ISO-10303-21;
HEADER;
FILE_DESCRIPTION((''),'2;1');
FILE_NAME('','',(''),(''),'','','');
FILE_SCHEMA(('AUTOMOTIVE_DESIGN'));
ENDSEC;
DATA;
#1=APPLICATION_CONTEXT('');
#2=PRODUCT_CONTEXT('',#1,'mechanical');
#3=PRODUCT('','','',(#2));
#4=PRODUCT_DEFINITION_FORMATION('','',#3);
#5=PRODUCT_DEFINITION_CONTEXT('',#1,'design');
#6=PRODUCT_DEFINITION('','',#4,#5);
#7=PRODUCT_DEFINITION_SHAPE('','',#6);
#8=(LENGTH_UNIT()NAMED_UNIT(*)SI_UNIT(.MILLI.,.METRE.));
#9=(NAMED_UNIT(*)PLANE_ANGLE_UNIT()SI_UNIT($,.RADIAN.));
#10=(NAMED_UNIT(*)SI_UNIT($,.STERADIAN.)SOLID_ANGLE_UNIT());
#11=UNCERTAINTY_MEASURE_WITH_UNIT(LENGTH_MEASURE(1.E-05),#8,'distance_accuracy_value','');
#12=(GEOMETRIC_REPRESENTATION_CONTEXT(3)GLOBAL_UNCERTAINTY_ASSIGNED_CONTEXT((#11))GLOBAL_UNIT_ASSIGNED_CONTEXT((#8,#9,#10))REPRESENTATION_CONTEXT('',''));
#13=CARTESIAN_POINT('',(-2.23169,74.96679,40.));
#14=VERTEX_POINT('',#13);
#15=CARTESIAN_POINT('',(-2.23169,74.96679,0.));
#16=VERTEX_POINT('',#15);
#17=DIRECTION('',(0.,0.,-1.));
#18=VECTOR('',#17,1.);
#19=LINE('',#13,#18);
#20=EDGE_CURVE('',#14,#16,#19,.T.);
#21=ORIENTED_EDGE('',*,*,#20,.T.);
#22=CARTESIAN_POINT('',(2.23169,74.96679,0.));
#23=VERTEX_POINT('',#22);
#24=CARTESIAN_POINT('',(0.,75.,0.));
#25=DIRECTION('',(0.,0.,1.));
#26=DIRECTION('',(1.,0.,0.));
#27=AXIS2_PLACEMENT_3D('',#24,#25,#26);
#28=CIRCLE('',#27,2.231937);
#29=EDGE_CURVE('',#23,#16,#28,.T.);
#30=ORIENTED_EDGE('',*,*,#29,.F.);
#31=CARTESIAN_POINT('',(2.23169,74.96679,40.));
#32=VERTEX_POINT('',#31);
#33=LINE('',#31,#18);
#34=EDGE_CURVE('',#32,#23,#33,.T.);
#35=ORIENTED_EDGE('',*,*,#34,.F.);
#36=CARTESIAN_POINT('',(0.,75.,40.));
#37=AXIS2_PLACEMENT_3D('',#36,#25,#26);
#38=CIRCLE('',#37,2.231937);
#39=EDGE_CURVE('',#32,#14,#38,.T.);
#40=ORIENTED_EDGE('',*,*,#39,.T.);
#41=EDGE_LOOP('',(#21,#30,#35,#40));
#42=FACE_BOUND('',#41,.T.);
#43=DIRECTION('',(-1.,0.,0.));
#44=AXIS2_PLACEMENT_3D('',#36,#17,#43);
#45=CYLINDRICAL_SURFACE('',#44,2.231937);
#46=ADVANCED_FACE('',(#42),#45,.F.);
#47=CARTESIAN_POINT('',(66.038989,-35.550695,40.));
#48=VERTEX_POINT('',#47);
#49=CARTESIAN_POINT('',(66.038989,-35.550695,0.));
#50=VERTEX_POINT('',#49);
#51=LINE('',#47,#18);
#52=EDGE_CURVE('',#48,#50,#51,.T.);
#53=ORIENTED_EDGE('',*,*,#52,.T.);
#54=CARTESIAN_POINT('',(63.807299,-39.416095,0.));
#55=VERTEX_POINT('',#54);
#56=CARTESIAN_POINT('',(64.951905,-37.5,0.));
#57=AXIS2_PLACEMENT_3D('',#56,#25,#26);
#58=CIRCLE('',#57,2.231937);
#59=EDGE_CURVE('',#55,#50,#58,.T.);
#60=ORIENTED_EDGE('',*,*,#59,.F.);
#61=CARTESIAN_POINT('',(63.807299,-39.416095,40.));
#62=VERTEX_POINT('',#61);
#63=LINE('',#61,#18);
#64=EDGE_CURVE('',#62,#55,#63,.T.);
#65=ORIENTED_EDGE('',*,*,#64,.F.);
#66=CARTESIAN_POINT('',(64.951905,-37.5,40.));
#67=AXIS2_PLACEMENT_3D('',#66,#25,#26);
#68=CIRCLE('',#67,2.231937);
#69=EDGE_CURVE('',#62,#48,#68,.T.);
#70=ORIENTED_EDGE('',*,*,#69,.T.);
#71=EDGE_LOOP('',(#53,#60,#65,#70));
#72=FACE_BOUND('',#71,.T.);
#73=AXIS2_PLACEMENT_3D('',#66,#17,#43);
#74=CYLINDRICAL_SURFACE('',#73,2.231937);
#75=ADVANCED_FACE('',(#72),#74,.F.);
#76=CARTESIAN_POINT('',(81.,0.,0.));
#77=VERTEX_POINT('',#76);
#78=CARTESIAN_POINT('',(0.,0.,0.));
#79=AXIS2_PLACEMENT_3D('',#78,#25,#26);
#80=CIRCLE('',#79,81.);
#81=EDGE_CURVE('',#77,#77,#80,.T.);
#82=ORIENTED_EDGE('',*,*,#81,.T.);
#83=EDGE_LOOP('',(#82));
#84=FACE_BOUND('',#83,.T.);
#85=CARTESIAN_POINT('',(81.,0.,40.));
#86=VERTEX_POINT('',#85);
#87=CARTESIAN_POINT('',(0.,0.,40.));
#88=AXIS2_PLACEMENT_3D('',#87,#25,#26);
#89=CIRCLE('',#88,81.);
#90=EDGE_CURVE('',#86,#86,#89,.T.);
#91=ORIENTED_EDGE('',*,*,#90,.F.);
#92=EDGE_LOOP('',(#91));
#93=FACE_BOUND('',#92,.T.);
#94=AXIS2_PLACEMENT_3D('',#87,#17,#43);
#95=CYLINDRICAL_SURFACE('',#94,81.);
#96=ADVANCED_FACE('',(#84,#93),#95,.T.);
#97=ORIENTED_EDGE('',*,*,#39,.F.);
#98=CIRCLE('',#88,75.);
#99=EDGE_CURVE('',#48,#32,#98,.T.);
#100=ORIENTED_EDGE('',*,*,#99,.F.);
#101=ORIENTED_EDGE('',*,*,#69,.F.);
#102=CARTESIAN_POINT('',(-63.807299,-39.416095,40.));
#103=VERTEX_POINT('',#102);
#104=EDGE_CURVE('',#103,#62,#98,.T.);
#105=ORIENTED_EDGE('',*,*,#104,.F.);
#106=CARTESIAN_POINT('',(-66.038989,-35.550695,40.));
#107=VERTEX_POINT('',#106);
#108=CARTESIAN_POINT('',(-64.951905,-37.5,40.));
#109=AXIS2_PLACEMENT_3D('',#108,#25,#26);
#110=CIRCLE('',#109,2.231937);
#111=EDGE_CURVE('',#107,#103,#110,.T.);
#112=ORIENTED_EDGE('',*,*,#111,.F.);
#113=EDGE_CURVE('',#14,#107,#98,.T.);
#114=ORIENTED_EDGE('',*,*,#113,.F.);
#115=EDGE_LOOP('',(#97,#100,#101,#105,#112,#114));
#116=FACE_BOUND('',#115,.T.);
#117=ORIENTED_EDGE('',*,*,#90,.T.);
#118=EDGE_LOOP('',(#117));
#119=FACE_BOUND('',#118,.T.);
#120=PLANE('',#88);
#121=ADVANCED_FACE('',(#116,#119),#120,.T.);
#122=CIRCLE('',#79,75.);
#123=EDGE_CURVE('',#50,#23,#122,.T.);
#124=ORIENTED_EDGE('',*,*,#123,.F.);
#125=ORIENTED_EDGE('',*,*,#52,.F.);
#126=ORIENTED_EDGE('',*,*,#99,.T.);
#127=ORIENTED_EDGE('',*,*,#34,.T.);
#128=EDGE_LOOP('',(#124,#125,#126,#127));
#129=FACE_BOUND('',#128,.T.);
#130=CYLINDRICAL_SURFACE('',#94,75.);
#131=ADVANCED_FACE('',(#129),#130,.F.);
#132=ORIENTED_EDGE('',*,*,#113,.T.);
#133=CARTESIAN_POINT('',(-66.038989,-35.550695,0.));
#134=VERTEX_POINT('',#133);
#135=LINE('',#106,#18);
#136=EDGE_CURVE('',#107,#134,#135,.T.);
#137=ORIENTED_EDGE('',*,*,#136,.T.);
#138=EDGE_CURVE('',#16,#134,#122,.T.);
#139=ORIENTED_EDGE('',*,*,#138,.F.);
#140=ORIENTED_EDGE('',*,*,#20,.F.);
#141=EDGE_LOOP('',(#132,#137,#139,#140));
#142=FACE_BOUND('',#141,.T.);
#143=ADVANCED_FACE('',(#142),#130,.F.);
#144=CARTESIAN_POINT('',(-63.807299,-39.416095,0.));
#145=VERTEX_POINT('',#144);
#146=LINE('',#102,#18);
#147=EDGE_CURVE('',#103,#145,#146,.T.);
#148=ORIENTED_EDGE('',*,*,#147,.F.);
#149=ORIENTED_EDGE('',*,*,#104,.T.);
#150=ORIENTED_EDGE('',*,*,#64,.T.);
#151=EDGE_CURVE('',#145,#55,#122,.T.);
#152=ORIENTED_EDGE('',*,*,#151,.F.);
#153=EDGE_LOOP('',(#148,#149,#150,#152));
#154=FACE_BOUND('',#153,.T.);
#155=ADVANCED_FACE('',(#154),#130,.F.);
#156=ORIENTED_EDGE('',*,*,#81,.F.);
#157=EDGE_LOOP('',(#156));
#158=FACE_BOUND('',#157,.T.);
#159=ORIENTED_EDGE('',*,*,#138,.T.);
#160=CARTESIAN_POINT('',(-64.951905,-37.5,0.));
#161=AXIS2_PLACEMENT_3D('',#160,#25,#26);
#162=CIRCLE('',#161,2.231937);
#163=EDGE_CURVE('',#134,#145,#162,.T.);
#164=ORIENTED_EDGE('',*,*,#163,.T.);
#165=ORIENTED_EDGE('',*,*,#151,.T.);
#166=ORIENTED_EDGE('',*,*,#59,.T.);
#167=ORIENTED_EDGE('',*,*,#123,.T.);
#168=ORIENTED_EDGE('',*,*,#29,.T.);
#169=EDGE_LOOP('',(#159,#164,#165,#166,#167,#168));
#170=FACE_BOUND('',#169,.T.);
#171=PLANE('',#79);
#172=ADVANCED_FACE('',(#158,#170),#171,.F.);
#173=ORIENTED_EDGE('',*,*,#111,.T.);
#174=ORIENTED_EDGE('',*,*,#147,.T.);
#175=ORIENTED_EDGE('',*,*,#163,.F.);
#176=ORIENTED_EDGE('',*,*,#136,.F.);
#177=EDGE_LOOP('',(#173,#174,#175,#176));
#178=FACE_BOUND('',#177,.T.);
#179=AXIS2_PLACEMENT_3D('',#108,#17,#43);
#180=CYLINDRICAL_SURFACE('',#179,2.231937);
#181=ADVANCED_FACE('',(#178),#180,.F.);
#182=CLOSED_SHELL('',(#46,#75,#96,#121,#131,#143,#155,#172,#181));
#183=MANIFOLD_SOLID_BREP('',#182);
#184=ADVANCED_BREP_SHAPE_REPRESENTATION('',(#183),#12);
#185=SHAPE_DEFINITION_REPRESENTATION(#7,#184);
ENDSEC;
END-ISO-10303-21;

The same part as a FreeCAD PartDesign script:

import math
import FreeCAD as App
import Part
import Sketcher

doc = App.newDocument("Part")
params = doc.addObject("Spreadsheet::Sheet", "Params")
for row, (alias, value) in enumerate([
    ("sketch1_diameter", "162 mm"),
    ("sketch1_radius", "75 mm"),
    ("pad1_length", "40 mm"),
], start=1):
    params.set(f"A{row}", alias)
    params.set(f"B{row}", "=" + value)
    params.setAlias(f"B{row}", alias)

body = doc.addObject("PartDesign::Body", "Body")

sketch1 = body.newObject("Sketcher::SketchObject", "Sketch")
sketch1.AttachmentSupport = (doc.getObject("XY_Plane"), [""])
sketch1.MapMode = "FlatFace"
sketch1.addGeometry([
    Part.Circle(App.Vector(0, 0, 0), App.Vector(0, 0, 1), 81),
    Part.ArcOfCircle(Part.Circle(App.Vector(0, 75, 0), App.Vector(0, 0, 1), 2.232), math.radians(-0.85), math.radians(0)),
    Part.ArcOfCircle(Part.Circle(App.Vector(0, 0, 0), App.Vector(0, 0, 1), 75), math.radians(0), math.radians(88)),
    Part.ArcOfCircle(Part.Circle(App.Vector(0, 0, 0), App.Vector(0, 0, 1), 75), math.radians(-28), math.radians(0)),
    Part.ArcOfCircle(Part.Circle(App.Vector(64.952, -37.5, 0), App.Vector(0, 0, 1), 2.232), math.radians(0), math.radians(61)),
    Part.ArcOfCircle(Part.Circle(App.Vector(64.952, -37.5, 0), App.Vector(0, 0, 1), 2.232), math.radians(-121), math.radians(0)),
    Part.ArcOfCircle(Part.Circle(App.Vector(0, 0, 0), App.Vector(0, 0, 1), 75), math.radians(-148), math.radians(-32)),
    Part.ArcOfCircle(Part.Circle(App.Vector(-64.952, -37.5, 0), App.Vector(0, 0, 1), 2.232), math.radians(119), math.radians(301)),
    Part.ArcOfCircle(Part.Circle(App.Vector(0, 0, 0), App.Vector(0, 0, 1), 75), math.radians(92), math.radians(208)),
    Part.ArcOfCircle(Part.Circle(App.Vector(0, 75, 0), App.Vector(0, 0, 1), 2.232), math.radians(0), math.radians(181)),
], False)
sketch1.addConstraint([
    Sketcher.Constraint("Coincident", 1, 1, 2, 2),
    Sketcher.Constraint("Tangent", 2, 1, 3, 2),
    Sketcher.Constraint("Coincident", 3, 1, 4, 2),
    Sketcher.Constraint("Tangent", 4, 1, 5, 2),
    Sketcher.Constraint("Coincident", 5, 1, 6, 2),
    Sketcher.Constraint("Coincident", 6, 1, 7, 2),
    Sketcher.Constraint("Coincident", 7, 1, 8, 2),
    Sketcher.Constraint("Coincident", 8, 1, 9, 2),
    Sketcher.Constraint("Tangent", 9, 1, 1, 2),
    Sketcher.Constraint("Coincident", 0, 3, -1, 1),
    Sketcher.Constraint("Coincident", 2, 3, -1, 1),
    Sketcher.Constraint("Coincident", 6, 3, -1, 1),
    Sketcher.Constraint("Coincident", 8, 3, -1, 1),
    Sketcher.Constraint("Equal", 2, 3),
    Sketcher.Constraint("Equal", 4, 5),
    Sketcher.Constraint("Equal", 3, 6),
    Sketcher.Constraint("Equal", 5, 7),
    Sketcher.Constraint("Equal", 6, 8),
    Sketcher.Constraint("Equal", 7, 9),
    Sketcher.Constraint("Symmetric", 4, 3, 7, 3, -2),
    Sketcher.Constraint("PointOnObject", 9, 3, -2),
    Sketcher.Constraint("PointOnObject", 2, 1, -1),
    Sketcher.Constraint("Horizontal", 7, 3, 4, 1),
    Sketcher.Constraint("Horizontal", 1, 3, 9, 1),
    Sketcher.Constraint("Diameter", 0, 162.0),
    Sketcher.Constraint("Radius", 2, 75.0),
    Sketcher.Constraint("DistanceY", -1, 1, 1, 3, 75.0),
    Sketcher.Constraint("DistanceY", 4, 3, -1, 1, 37.5),
    Sketcher.Constraint("Radius", 1, 2.231917),
    Sketcher.Constraint("Radius", 4, 2.231937),
    Sketcher.Constraint("DistanceX", -1, 1, 5, 1, 63.807299),
])
sketch1.setExpression("Constraints[24]", "Params.sketch1_diameter")
sketch1.setExpression("Constraints[25]", "Params.sketch1_radius")
pad1 = body.newObject("PartDesign::Pad", "Pad")
pad1.Profile = sketch1
pad1.setExpression("Length", "Params.pad1_length")

doc.recompute()
